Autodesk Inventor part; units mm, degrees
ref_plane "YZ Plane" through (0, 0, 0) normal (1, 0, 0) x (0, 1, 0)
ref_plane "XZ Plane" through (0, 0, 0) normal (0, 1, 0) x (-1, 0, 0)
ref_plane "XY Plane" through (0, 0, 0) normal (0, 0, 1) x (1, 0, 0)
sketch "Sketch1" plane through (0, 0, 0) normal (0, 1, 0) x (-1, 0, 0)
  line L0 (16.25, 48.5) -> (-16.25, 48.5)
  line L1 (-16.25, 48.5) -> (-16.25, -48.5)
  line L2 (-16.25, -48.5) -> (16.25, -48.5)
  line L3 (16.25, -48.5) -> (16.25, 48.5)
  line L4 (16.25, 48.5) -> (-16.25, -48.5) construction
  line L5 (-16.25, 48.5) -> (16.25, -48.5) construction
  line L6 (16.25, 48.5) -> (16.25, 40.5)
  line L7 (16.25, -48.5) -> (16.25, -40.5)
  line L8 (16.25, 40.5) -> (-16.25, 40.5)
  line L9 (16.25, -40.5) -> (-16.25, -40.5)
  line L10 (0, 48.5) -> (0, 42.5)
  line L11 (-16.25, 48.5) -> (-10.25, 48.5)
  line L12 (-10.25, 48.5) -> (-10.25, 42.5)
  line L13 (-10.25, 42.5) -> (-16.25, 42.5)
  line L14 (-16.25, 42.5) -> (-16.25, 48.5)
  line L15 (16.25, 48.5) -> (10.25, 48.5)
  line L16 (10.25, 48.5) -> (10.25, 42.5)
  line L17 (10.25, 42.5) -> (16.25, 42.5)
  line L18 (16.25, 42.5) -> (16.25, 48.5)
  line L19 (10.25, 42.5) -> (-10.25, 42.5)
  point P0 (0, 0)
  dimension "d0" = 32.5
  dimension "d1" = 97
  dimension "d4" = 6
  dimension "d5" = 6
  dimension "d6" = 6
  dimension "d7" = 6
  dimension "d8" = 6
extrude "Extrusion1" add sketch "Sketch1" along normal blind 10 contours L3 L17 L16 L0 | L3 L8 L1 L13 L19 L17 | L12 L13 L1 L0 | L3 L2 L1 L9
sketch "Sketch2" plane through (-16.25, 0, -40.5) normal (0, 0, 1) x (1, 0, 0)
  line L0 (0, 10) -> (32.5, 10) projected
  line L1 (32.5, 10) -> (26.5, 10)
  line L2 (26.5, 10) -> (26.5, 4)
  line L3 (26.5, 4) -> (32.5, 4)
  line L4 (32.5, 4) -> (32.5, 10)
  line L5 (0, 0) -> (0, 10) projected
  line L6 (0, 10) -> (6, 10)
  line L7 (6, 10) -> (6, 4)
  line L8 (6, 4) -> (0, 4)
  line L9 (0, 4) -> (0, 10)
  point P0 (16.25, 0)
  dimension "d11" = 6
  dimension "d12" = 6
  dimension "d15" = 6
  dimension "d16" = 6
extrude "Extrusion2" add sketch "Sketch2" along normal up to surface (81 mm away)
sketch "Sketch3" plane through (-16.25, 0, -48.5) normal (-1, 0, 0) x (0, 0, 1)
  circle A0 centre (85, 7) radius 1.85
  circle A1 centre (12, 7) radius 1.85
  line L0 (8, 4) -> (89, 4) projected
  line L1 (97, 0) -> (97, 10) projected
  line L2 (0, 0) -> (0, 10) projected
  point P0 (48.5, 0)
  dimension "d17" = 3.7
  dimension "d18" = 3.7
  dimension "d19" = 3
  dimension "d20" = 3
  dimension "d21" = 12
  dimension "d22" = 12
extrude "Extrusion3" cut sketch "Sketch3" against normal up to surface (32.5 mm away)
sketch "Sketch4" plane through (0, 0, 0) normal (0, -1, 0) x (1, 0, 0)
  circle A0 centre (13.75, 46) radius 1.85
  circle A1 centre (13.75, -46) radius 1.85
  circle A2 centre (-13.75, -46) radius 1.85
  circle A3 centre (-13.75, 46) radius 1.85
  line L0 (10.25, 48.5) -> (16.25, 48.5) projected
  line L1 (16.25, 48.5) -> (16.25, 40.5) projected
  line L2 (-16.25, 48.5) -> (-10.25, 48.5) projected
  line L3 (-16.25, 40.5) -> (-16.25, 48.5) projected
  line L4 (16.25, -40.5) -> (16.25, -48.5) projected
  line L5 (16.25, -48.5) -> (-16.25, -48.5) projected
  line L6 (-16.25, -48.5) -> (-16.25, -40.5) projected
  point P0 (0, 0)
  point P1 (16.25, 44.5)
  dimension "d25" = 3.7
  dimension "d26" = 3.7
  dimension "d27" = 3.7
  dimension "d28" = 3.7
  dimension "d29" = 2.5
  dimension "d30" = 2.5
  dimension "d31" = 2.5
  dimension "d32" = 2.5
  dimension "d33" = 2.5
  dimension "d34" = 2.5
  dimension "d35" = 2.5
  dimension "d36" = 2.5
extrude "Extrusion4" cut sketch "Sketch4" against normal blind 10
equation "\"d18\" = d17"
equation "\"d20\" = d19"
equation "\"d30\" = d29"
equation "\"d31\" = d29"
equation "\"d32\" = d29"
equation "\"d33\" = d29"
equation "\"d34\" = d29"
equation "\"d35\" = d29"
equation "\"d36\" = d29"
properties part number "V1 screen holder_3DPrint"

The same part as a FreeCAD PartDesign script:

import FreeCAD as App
import Part
import Sketcher
from FreeCAD import Vector
Q = App.Units.Quantity


def add_polygon(sketch, points):
    """Adds a closed chain of lines whose ends are joined by coincident constraints."""
    first, n = sketch.GeometryCount, len(points)
    for a, b in zip(points, points[1:] + points[:1]):
        sketch.addGeometry(Part.LineSegment(App.Vector(*a, 0), App.Vector(*b, 0)), False)
    for i in range(n):
        sketch.addConstraint(Sketcher.Constraint("Coincident", first + i, 2, first + (i + 1) % n, 1))

doc = App.newDocument("Part")
body = doc.addObject("PartDesign::Body", "Body")
body.AllowCompound = True

sketch1 = body.newObject("Sketcher::SketchObject", "Sketch")
sketch1.AttachmentSupport = (doc.getObject("XZ_Plane"), [""])
sketch1.MapMode = "FlatFace"
add_polygon(sketch1, [(-16, 48), (-10, 48), (-10, 42), (10, 42), (10, 48), (16, 48), (16, 40), (-16, 40)])
add_polygon(sketch1, [(-16, -48), (-16, -40), (16, -40), (16, -48)])
sketch1.addConstraint([
    Sketcher.Constraint("Horizontal", 0),
    Sketcher.Constraint("Vertical", 1),
    Sketcher.Constraint("Horizontal", 2),
    Sketcher.Constraint("Vertical", 3),
    Sketcher.Constraint("Horizontal", 4),
    Sketcher.Constraint("Vertical", 5),
    Sketcher.Constraint("Horizontal", 6),
    Sketcher.Constraint("Vertical", 7),
    Sketcher.Constraint("Vertical", 8),
    Sketcher.Constraint("Horizontal", 9),
    Sketcher.Constraint("Vertical", 10),
    Sketcher.Constraint("Horizontal", 11),
    Sketcher.Constraint("Symmetric", 5, 2, 8, 2, -1, 1),
    Sketcher.Constraint("Symmetric", 7, 2, 10, 2, -1, 1),
    Sketcher.Constraint("Symmetric", 0, 2, 3, 2, -2),
    Sketcher.Constraint("Vertical", 7, 2, 8, 2),
    Sketcher.Constraint("Equal", 4, 1),
    Sketcher.Constraint("DistanceX", 0, 1, 0, 2, Q("6 mm")),
    Sketcher.Constraint("DistanceX", 6, 2, 6, 1, Q("32.5 mm")),
    Sketcher.Constraint("DistanceY", 5, 2, 5, 1, Q("8 mm")),
    Sketcher.Constraint("DistanceY", 8, 2, 6, 2, Q("81 mm")),
])
pad1 = body.newObject("PartDesign::Pad", "Pad")
pad1.Profile = sketch1
pad1.Length = 10
pad1.Reversed = True

sketch2 = body.newObject("Sketcher::SketchObject", "Sketch001")
sketch2.AttachmentSupport = (doc.getObject("XY_Plane"), [""])
sketch2.MapMode = "FlatFace"
sketch2.AttachmentOffset = App.Placement(Vector(0, 0, -40.5), App.Rotation())
add_polygon(sketch2, [(16, 10), (10, 10), (10, 4), (16, 4)])
add_polygon(sketch2, [(-10, 10), (-16, 10), (-16, 4), (-10, 4)])
sketch2.addConstraint([
    Sketcher.Constraint("Horizontal", 0),
    Sketcher.Constraint("Vertical", 1),
    Sketcher.Constraint("Horizontal", 2),
    Sketcher.Constraint("Vertical", 3),
    Sketcher.Constraint("Horizontal", 4),
    Sketcher.Constraint("Vertical", 5),
    Sketcher.Constraint("Horizontal", 6),
    Sketcher.Constraint("Vertical", 7),
    Sketcher.Constraint("Symmetric", 3, 2, 4, 2, -2),
    Sketcher.Constraint("Symmetric", 1, 2, 6, 2, -2),
    Sketcher.Constraint("Equal", 6, 1),
    Sketcher.Constraint("DistanceX", 0, 2, 0, 1, Q("6 mm")),
    Sketcher.Constraint("DistanceY", -1, 1, 0, 2, Q("10 mm")),
    Sketcher.Constraint("DistanceX", 4, 2, 0, 2, Q("26.5 mm")),
])
pad2 = body.newObject("PartDesign::Pad", "Pad001")
pad2.Profile = sketch2
pad2.Length = 81

sketch3 = body.newObject("Sketcher::SketchObject", "Sketch002")
sketch3.AttachmentSupport = (doc.getObject("YZ_Plane"), [""])
sketch3.MapMode = "FlatFace"
sketch3.AttachmentOffset = App.Placement(Vector(0, 0, -16.25), App.Rotation())
sketch3.addGeometry([
    Part.Circle(Vector(7, 36.5, 0), Vector(0, 0, 1), 1.9),
    Part.Circle(Vector(7, -36.5, 0), Vector(0, 0, 1), 1.9),
], False)
sketch3.addConstraint([
    Sketcher.Constraint("Equal", 0, 1),
    Sketcher.Constraint("Symmetric", 0, 3, 1, 3, -1),
    Sketcher.Constraint("Diameter", 0, Q("3.7 mm")),
    Sketcher.Constraint("DistanceX", -1, 1, 0, 3, Q("7 mm")),
    Sketcher.Constraint("DistanceY", 1, 3, 0, 3, Q("73 mm")),
])
pocket1 = body.newObject("PartDesign::Pocket", "Pocket")
pocket1.Profile = sketch3
pocket1.Length = 32.5
pocket1.Reversed = True

sketch4 = body.newObject("Sketcher::SketchObject", "Sketch003")
sketch4.AttachmentSupport = (doc.getObject("XZ_Plane"), [""])
sketch4.MapMode = "FlatFace"
sketch4.addGeometry([
    Part.Circle(Vector(13.8, 46, 0), Vector(0, 0, 1), 1.9),
    Part.Circle(Vector(13.8, -46, 0), Vector(0, 0, 1), 1.9),
    Part.Circle(Vector(-13.8, -46, 0), Vector(0, 0, 1), 1.9),
    Part.Circle(Vector(-13.8, 46, 0), Vector(0, 0, 1), 1.9),
], False)
sketch4.addConstraint([
    Sketcher.Constraint("Equal", 0, 1),
    Sketcher.Constraint("Equal", 1, 2),
    Sketcher.Constraint("Equal", 2, 3),
    Sketcher.Constraint("Symmetric", 0, 3, 2, 3, -1, 1),
    Sketcher.Constraint("Symmetric", 1, 3, 3, 3, -1, 1),
    Sketcher.Constraint("Symmetric", 1, 3, 2, 3, -2),
    Sketcher.Constraint("Diameter", 0, Q("3.7 mm")),
    Sketcher.Constraint("DistanceY", -1, 1, 0, 3, Q("46 mm")),
    Sketcher.Constraint("DistanceX", 2, 3, 1, 3, Q("27.5 mm")),
])
pocket2 = body.newObject("PartDesign::Pocket", "Pocket001")
pocket2.Profile = sketch4
pocket2.Length = 10

doc.recompute()
